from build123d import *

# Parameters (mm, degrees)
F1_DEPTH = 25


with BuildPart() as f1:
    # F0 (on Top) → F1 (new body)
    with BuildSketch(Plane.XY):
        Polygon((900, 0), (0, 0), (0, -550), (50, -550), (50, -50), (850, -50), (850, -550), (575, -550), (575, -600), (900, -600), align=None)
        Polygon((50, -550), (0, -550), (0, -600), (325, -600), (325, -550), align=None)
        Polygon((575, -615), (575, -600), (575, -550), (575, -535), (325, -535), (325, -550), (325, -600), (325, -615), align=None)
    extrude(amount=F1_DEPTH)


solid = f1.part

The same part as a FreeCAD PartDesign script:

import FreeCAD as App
import Part
import Sketcher


def add_polygon(sketch, points):
    """Adds a closed chain of lines whose ends are joined by coincident constraints."""
    first, n = sketch.GeometryCount, len(points)
    for a, b in zip(points, points[1:] + points[:1]):
        sketch.addGeometry(Part.LineSegment(App.Vector(*a, 0), App.Vector(*b, 0)), False)
    for i in range(n):
        sketch.addConstraint(Sketcher.Constraint("Coincident", first + i, 2, first + (i + 1) % n, 1))

doc = App.newDocument("Part")
body = doc.addObject("PartDesign::Body", "Body")

sketch1 = doc.addObject("Sketcher::SketchObject", "Sketch")
body.addObject(sketch1)
sketch1.AttachmentSupport = (doc.XY_Plane, [""])
sketch1.MapMode = "FlatFace"
add_polygon(sketch1, [(900, 0), (0, 0), (0, -600), (325, -600), (325, -615), (575, -615), (575, -600), (900, -600)])
add_polygon(sketch1, [(325, -550), (50, -550), (50, -50), (850, -50), (850, -550), (575, -550), (575, -535), (325, -535)])
sketch1.addConstraint([
    Sketcher.Constraint("Horizontal", 0),
    Sketcher.Constraint("Vertical", 1),
    Sketcher.Constraint("Horizontal", 2),
    Sketcher.Constraint("Vertical", 3),
    Sketcher.Constraint("Horizontal", 4),
    Sketcher.Constraint("Vertical", 5),
    Sketcher.Constraint("Horizontal", 6),
    Sketcher.Constraint("Vertical", 7),
    Sketcher.Constraint("Horizontal", 8),
    Sketcher.Constraint("Vertical", 9),
    Sketcher.Constraint("Horizontal", 10),
    Sketcher.Constraint("Vertical", 11),
    Sketcher.Constraint("Horizontal", 12),
    Sketcher.Constraint("Vertical", 13),
    Sketcher.Constraint("Horizontal", 14),
    Sketcher.Constraint("Vertical", 15),
    Sketcher.Constraint("Coincident", 0, 2, -1, 1),
    Sketcher.Constraint("Horizontal", 2, 2, 5, 2),
    Sketcher.Constraint("Horizontal", 8, 2, 11, 2),
    Sketcher.Constraint("Vertical", 5, 2, 12, 2),
    Sketcher.Constraint("Vertical", 3, 2, 14, 2),
    Sketcher.Constraint("Equal", 2, 6),
    Sketcher.Constraint("Equal", 8, 12),
    Sketcher.Constraint("Equal", 5, 13),
    Sketcher.Constraint("DistanceX", 0, 2, 0, 1, 900.0),
    Sketcher.Constraint("DistanceX", 2, 1, 2, 2, 325.0),
    Sketcher.Constraint("DistanceX", 8, 2, 8, 1, 275.0),
    Sketcher.Constraint("DistanceY", 1, 2, 1, 1, 600.0),
    Sketcher.Constraint("DistanceY", 3, 2, 3, 1, 15.0),
    Sketcher.Constraint("DistanceY", 9, 1, 9, 2, 500.0),
    Sketcher.Constraint("DistanceY", 8, 2, -1, 1, 550.0),
])
pad1 = doc.addObject("PartDesign::Pad", "Pad")
body.addObject(pad1)
pad1.Profile = sketch1
pad1.Length = 25

doc.recompute()
